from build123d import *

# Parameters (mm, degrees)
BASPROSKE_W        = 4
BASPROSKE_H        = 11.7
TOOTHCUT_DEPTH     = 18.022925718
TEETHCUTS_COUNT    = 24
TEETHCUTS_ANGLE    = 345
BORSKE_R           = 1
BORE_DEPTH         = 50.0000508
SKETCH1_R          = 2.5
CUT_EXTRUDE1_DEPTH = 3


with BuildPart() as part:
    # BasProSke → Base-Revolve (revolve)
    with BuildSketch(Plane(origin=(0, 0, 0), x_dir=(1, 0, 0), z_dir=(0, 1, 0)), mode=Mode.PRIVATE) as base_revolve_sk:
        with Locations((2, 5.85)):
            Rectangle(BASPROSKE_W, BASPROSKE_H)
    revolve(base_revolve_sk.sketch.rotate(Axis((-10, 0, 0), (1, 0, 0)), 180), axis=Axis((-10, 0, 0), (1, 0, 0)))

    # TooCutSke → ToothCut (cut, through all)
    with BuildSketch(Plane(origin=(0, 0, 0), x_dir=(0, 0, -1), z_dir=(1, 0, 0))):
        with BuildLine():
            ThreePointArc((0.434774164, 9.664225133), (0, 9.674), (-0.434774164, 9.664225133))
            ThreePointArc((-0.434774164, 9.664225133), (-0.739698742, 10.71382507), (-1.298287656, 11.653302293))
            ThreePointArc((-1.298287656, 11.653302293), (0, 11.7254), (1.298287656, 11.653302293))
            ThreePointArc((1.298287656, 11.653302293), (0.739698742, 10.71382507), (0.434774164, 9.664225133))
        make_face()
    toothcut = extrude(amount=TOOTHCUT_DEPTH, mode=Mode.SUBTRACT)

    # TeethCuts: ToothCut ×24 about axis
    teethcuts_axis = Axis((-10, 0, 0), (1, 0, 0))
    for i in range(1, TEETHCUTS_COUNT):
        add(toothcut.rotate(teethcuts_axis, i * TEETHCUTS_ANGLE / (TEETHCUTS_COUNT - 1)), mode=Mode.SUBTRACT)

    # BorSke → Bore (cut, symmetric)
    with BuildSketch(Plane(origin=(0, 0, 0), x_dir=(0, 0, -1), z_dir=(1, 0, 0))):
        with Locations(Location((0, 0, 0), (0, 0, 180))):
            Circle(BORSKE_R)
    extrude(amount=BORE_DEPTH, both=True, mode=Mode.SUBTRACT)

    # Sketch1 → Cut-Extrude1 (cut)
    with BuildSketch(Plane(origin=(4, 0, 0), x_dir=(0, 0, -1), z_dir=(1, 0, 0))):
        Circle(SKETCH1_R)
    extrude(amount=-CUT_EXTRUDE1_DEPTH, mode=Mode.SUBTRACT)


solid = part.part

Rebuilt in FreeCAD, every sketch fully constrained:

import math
import FreeCAD as App
import Part
import Sketcher
Q = App.Units.Quantity

doc = App.newDocument("Part")
params = doc.addObject("Spreadsheet::Sheet", "Params")
for row, (alias, value) in enumerate([
    ("sketch1_width", "4 mm"),
    ("sketch1_height", "11.7 mm"),
    ("revolution_angle", "360 deg"),
    ("sketch2_radius", "4.32 mm"),
    ("sketch3_diameter", "2 mm"),
    ("pocket2_length", "100.000102 mm"),
    ("sketch4_diameter", "5 mm"),
    ("pocket3_length", "3 mm"),
], start=1):
    params.set(f"A{row}", alias)
    params.set(f"B{row}", "=" + value)
    params.setAlias(f"B{row}", alias)

body = doc.addObject("PartDesign::Body", "Body")

# Sketch on XZ plane
sketch1 = body.newObject("Sketcher::SketchObject", "Sketch")
sketch1.AttachmentSupport = (doc.getObject("XZ_Plane"), [""])
sketch1.MapMode = "FlatFace"
sketch1.addGeometry(Part.LineSegment(App.Vector(0, -11.7, 0), App.Vector(0, 0, 0)), False)
sketch1.addGeometry(Part.LineSegment(App.Vector(0, 0, 0), App.Vector(4, 0, 0)), False)
sketch1.addGeometry(Part.LineSegment(App.Vector(4, 0, 0), App.Vector(4, -11.7, 0)), False)
sketch1.addGeometry(Part.LineSegment(App.Vector(4, -11.7, 0), App.Vector(0, -11.7, 0)), False)
sketch1.addConstraint(Sketcher.Constraint("Coincident", 0, 2, 1, 1))
sketch1.addConstraint(Sketcher.Constraint("Coincident", 1, 2, 2, 1))
sketch1.addConstraint(Sketcher.Constraint("Coincident", 2, 2, 3, 1))
sketch1.addConstraint(Sketcher.Constraint("Coincident", 3, 2, 0, 1))
sketch1.addConstraint(Sketcher.Constraint("Vertical", 0))
sketch1.addConstraint(Sketcher.Constraint("Horizontal", 1))
sketch1.addConstraint(Sketcher.Constraint("Vertical", 2))
sketch1.addConstraint(Sketcher.Constraint("Horizontal", 3))
sketch1.addConstraint(Sketcher.Constraint("Coincident", 0, 2, -1, 1))
sketch1.addConstraint(Sketcher.Constraint("DistanceX", 1, 1, 1, 2, Q("4 mm")))
sketch1.addConstraint(Sketcher.Constraint("DistanceY", 0, 1, 0, 2, Q("11.7 mm")))
sketch1.setExpression("Constraints[9]", "Params.sketch1_width")
sketch1.setExpression("Constraints[10]", "Params.sketch1_height")
revolution = body.newObject("PartDesign::Revolution", "Revolution")
revolution.Profile = sketch1
revolution.ReferenceAxis = (sketch1, ["H_Axis"])
revolution.setExpression("Angle", "Params.revolution_angle")

# Sketch on YZ plane
sketch2 = body.newObject("Sketcher::SketchObject", "Sketch001")
sketch2.AttachmentSupport = (doc.getObject("YZ_Plane"), [""])
sketch2.MapMode = "FlatFace"
sketch2.addGeometry(Part.ArcOfCircle(Part.Circle(App.Vector(0, 0, 0), App.Vector(0, 0, 1), 9.674), math.radians(-2.575886), math.radians(2.575886)), False)
sketch2.addGeometry(Part.ArcOfCircle(Part.Circle(App.Vector(8.993511, -4.70239, 0), App.Vector(0, 0, 1), 4.32), math.radians(51.997752), math.radians(81.068248)), False)
sketch2.addGeometry(Part.ArcOfCircle(Part.Circle(App.Vector(0, 0, 0), App.Vector(0, 0, 1), 11.7254), math.radians(-6.357075), math.radians(6.357075)), False)
sketch2.addGeometry(Part.ArcOfCircle(Part.Circle(App.Vector(8.993511, 4.70239, 0), App.Vector(0, 0, 1), 4.32), math.radians(-81.068248), math.radians(-51.997752)), False)
sketch2.addConstraint(Sketcher.Constraint("Coincident", 0, 1, 1, 2))
sketch2.addConstraint(Sketcher.Constraint("Coincident", 1, 1, 2, 1))
sketch2.addConstraint(Sketcher.Constraint("Coincident", 2, 2, 3, 2))
sketch2.addConstraint(Sketcher.Constraint("Coincident", 3, 1, 0, 2))
sketch2.addConstraint(Sketcher.Constraint("Coincident", 0, 3, -1, 1))
sketch2.addConstraint(Sketcher.Constraint("Coincident", 2, 3, -1, 1))
sketch2.addConstraint(Sketcher.Constraint("Equal", 1, 3))
sketch2.addConstraint(Sketcher.Constraint("Symmetric", 1, 3, 3, 3, -1))
sketch2.addConstraint(Sketcher.Constraint("Radius", 1, Q("4.32 mm")))
sketch2.addConstraint(Sketcher.Constraint("Radius", 0, Q("9.674 mm")))
sketch2.addConstraint(Sketcher.Constraint("Radius", 2, Q("11.7254 mm")))
sketch2.addConstraint(Sketcher.Constraint("DistanceX", -1, 1, 1, 3, Q("8.993511 mm")))
sketch2.addConstraint(Sketcher.Constraint("DistanceY", 1, 3, -1, 1, Q("4.70239 mm")))
sketch2.setExpression("Constraints[8]", "Params.sketch2_radius")
pocket1 = body.newObject("PartDesign::Pocket", "Pocket")
pocket1.Profile = sketch2
pocket1.Type = "ThroughAll"
pocket1.Reversed = True
doc.recompute()

polarpattern = body.newObject("PartDesign::PolarPattern", "PolarPattern")
polarpattern.Originals = [pocket1]
polarpattern.Axis = (doc.getObject("X_Axis"), [""])
polarpattern.Angle = 360
polarpattern.Occurrences = 24
body.Tip = polarpattern

# Sketch on YZ plane
sketch3 = body.newObject("Sketcher::SketchObject", "Sketch002")
sketch3.AttachmentSupport = (doc.getObject("YZ_Plane"), [""])
sketch3.MapMode = "FlatFace"
sketch3.addGeometry(Part.Circle(App.Vector(0, 0, 0), App.Vector(0, 0, 1), 1), False)
sketch3.addConstraint(Sketcher.Constraint("Coincident", 0, 3, -1, 1))
sketch3.addConstraint(Sketcher.Constraint("Diameter", 0, Q("2 mm")))
sketch3.setExpression("Constraints[1]", "Params.sketch3_diameter")
pocket2 = body.newObject("PartDesign::Pocket", "Pocket001")
pocket2.Profile = sketch3
pocket2.setExpression("Length", "Params.pocket2_length")
pocket2.Midplane = True

# Sketch on YZ plane
sketch4 = body.newObject("Sketcher::SketchObject", "Sketch003")
sketch4.AttachmentSupport = (doc.getObject("YZ_Plane"), [""])
sketch4.MapMode = "FlatFace"
sketch4.AttachmentOffset = App.Placement(App.Vector(0, 0, 4), App.Rotation())
sketch4.addGeometry(Part.Circle(App.Vector(0, 0, 0), App.Vector(0, 0, 1), 2.5), False)
sketch4.addConstraint(Sketcher.Constraint("Coincident", 0, 3, -1, 1))
sketch4.addConstraint(Sketcher.Constraint("Diameter", 0, Q("5 mm")))
sketch4.setExpression("Constraints[1]", "Params.sketch4_diameter")
pocket3 = body.newObject("PartDesign::Pocket", "Pocket002")
pocket3.Profile = sketch4
pocket3.setExpression("Length", "Params.pocket3_length")

doc.recompute()
